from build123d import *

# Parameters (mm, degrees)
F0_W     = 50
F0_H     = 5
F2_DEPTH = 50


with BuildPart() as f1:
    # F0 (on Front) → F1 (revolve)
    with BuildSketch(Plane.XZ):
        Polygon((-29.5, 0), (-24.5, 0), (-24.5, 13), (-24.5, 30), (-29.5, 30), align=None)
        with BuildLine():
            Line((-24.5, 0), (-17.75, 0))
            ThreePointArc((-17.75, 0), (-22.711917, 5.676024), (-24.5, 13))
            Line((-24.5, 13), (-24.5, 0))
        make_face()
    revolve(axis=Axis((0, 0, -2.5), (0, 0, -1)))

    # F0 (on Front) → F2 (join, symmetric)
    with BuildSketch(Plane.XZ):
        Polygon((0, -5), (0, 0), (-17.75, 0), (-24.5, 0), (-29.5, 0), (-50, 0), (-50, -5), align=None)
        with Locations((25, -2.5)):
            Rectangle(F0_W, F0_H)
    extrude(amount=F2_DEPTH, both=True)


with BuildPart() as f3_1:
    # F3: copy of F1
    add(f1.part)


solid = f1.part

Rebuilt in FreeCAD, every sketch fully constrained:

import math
import FreeCAD as App
import Part
import Sketcher
from FreeCAD import Vector


def add_polygon(sketch, points):
    """Adds a closed chain of lines whose ends are joined by coincident constraints."""
    first, n = sketch.GeometryCount, len(points)
    for a, b in zip(points, points[1:] + points[:1]):
        sketch.addGeometry(Part.LineSegment(App.Vector(*a, 0), App.Vector(*b, 0)), False)
    for i in range(n):
        sketch.addConstraint(Sketcher.Constraint("Coincident", first + i, 2, first + (i + 1) % n, 1))

doc = App.newDocument("Part")
params = doc.addObject("Spreadsheet::Sheet", "Params")
for row, (alias, value) in enumerate([
    ("sketch1_width", "5 mm"),
    ("sketch1_height", "17 mm"),
    ("sketch1_height2", "30 mm"),
    ("sketch1_width2", "11.75 mm"),
    ("revolution_angle", "360 deg"),
    ("sketch2_width", "100 mm"),
    ("sketch2_height", "5 mm"),
    ("pad1_length", "100 mm"),
], start=1):
    params.set(f"A{row}", alias)
    params.set(f"B{row}", "=" + value)
    params.setAlias(f"B{row}", alias)

body = doc.addObject("PartDesign::Body", "Body")

sketch1 = body.newObject("Sketcher::SketchObject", "Sketch")
sketch1.AttachmentSupport = (doc.getObject("XZ_Plane"), [""])
sketch1.MapMode = "FlatFace"
sketch1.addGeometry([
    Part.LineSegment(Vector(-30, 0, 0), Vector(-18, 0, 0)),
    Part.ArcOfCircle(Part.Circle(Vector(-9, 13, 0), Vector(0, 0, 1), 16), math.radians(180), math.radians(235)),
    Part.LineSegment(Vector(-24, 13, 0), Vector(-24, 30, 0)),
    Part.LineSegment(Vector(-24, 30, 0), Vector(-30, 30, 0)),
    Part.LineSegment(Vector(-30, 30, 0), Vector(-30, 0, 0)),
], False)
sketch1.addConstraint([
    Sketcher.Constraint("Coincident", 0, 2, 1, 2),
    Sketcher.Constraint("Tangent", 1, 1, 2, 1),
    Sketcher.Constraint("Coincident", 2, 2, 3, 1),
    Sketcher.Constraint("Coincident", 3, 2, 4, 1),
    Sketcher.Constraint("Coincident", 4, 2, 0, 1),
    Sketcher.Constraint("Horizontal", 0),
    Sketcher.Constraint("Vertical", 2),
    Sketcher.Constraint("Horizontal", 3),
    Sketcher.Constraint("Vertical", 4),
    Sketcher.Constraint("PointOnObject", 0, 2, -1),
    Sketcher.Constraint("DistanceX", 3, 2, 3, 1, 5.0),
    Sketcher.Constraint("DistanceY", 2, 1, 2, 2, 17.0),
    Sketcher.Constraint("DistanceY", 4, 2, 4, 1, 30.0),
    Sketcher.Constraint("DistanceX", 0, 1, 0, 2, 11.75),
    Sketcher.Constraint("DistanceX", 1, 1, -1, 1, 24.5),
])
sketch1.setExpression("Constraints[10]", "Params.sketch1_width")
sketch1.setExpression("Constraints[11]", "Params.sketch1_height")
sketch1.setExpression("Constraints[12]", "Params.sketch1_height2")
sketch1.setExpression("Constraints[13]", "Params.sketch1_width2")
revolution = body.newObject("PartDesign::Revolution", "Revolution")
revolution.Profile = sketch1
revolution.ReferenceAxis = (sketch1, ["V_Axis"])
revolution.setExpression("Angle", "Params.revolution_angle")

sketch2 = body.newObject("Sketcher::SketchObject", "Sketch001")
sketch2.AttachmentSupport = (doc.getObject("XZ_Plane"), [""])
sketch2.MapMode = "FlatFace"
add_polygon(sketch2, [(-50, 0), (-50, -5), (50, -5), (50, 0)])
sketch2.addConstraint([
    Sketcher.Constraint("Vertical", 0),
    Sketcher.Constraint("Horizontal", 1),
    Sketcher.Constraint("Vertical", 2),
    Sketcher.Constraint("Horizontal", 3),
    Sketcher.Constraint("Symmetric", 2, 2, 3, 2, -1, 1),
    Sketcher.Constraint("DistanceX", 1, 1, 1, 2, 100.0),
    Sketcher.Constraint("DistanceY", 0, 2, 0, 1, 5.0),
])
sketch2.setExpression("Constraints[9]", "Params.sketch2_width")
sketch2.setExpression("Constraints[10]", "Params.sketch2_height")
pad1 = body.newObject("PartDesign::Pad", "Pad")
pad1.Profile = sketch2
pad1.setExpression("Length", "Params.pad1_length")
pad1.Midplane = True
body2 = doc.addObject("PartDesign::Body", "Body001")
doc.recompute()

body2.BaseFeature = body
doc.recompute()
body.Visibility = False

doc.recompute()
